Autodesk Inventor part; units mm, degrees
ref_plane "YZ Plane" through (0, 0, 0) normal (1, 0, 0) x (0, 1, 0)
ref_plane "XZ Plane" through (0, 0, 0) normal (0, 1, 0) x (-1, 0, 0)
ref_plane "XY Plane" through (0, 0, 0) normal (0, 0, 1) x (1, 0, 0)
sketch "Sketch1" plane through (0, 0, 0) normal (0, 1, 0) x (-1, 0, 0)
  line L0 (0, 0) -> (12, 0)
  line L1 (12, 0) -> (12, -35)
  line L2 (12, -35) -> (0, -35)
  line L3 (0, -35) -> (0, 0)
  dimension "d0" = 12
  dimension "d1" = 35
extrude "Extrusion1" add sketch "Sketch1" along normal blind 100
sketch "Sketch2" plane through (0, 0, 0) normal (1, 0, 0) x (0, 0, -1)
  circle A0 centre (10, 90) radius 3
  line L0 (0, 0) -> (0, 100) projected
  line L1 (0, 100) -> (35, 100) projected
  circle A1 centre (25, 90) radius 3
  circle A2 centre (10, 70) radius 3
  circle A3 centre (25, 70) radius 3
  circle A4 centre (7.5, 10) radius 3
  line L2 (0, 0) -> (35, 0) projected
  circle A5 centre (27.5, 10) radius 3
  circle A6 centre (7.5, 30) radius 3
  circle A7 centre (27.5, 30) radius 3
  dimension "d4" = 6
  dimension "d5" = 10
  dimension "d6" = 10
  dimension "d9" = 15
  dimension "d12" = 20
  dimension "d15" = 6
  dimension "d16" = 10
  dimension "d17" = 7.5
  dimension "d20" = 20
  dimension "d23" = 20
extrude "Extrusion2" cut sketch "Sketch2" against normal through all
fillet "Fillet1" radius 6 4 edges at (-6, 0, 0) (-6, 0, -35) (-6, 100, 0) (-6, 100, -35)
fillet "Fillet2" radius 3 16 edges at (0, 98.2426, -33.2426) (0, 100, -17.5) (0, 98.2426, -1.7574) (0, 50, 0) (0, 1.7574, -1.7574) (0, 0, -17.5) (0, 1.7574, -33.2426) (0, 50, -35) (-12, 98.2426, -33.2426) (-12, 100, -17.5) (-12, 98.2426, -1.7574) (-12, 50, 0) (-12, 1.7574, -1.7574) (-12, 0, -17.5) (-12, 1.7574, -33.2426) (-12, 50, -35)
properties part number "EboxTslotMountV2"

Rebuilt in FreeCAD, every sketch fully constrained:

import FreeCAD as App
import Part
import Sketcher
from FreeCAD import Vector


def edges_at(feature, points):
    """Names of the edges that pass closest to the given points."""
    edges = feature.Shape.Edges
    near = lambda p: min(range(len(edges)), key=lambda i: edges[i].distToShape(Part.Vertex(*p))[0])
    return sorted({f"Edge{near(p) + 1}" for p in points})

doc = App.newDocument("Part")
body = doc.addObject("PartDesign::Body", "Body")

# Sketch on XZ plane
sketch1 = body.newObject("Sketcher::SketchObject", "Sketch")
sketch1.AttachmentSupport = (doc.getObject("XZ_Plane"), [""])
sketch1.MapMode = "FlatFace"
sketch1.addGeometry(Part.LineSegment(Vector(-12, 0, 0), Vector(0, 0, 0)), False)
sketch1.addGeometry(Part.LineSegment(Vector(0, 0, 0), Vector(0, -35, 0)), False)
sketch1.addGeometry(Part.LineSegment(Vector(0, -35, 0), Vector(-12, -35, 0)), False)
sketch1.addGeometry(Part.LineSegment(Vector(-12, -35, 0), Vector(-12, 0, 0)), False)
sketch1.addConstraint(Sketcher.Constraint("Coincident", 0, 2, 1, 1))
sketch1.addConstraint(Sketcher.Constraint("Coincident", 1, 2, 2, 1))
sketch1.addConstraint(Sketcher.Constraint("Coincident", 2, 2, 3, 1))
sketch1.addConstraint(Sketcher.Constraint("Coincident", 3, 2, 0, 1))
sketch1.addConstraint(Sketcher.Constraint("Horizontal", 0))
sketch1.addConstraint(Sketcher.Constraint("Vertical", 1))
sketch1.addConstraint(Sketcher.Constraint("Horizontal", 2))
sketch1.addConstraint(Sketcher.Constraint("Vertical", 3))
sketch1.addConstraint(Sketcher.Constraint("Coincident", 0, 2, -1, 1))
sketch1.addConstraint(Sketcher.Constraint("DistanceX", 0, 1, 0, 2, 12.0))
sketch1.addConstraint(Sketcher.Constraint("DistanceY", 1, 2, 1, 1, 35.0))
pad1 = body.newObject("PartDesign::Pad", "Pad")
pad1.Profile = sketch1
pad1.Length = 100
pad1.Reversed = True

# Sketch on YZ plane
sketch2 = body.newObject("Sketcher::SketchObject", "Sketch001")
sketch2.AttachmentSupport = (doc.getObject("YZ_Plane"), [""])
sketch2.MapMode = "FlatFace"
sketch2.addGeometry(Part.Circle(Vector(90, -10, 0), Vector(0, 0, 1), 3), False)
sketch2.addGeometry(Part.Circle(Vector(90, -25, 0), Vector(0, 0, 1), 3), False)
sketch2.addGeometry(Part.Circle(Vector(70, -10, 0), Vector(0, 0, 1), 3), False)
sketch2.addGeometry(Part.Circle(Vector(70, -25, 0), Vector(0, 0, 1), 3), False)
sketch2.addGeometry(Part.Circle(Vector(10, -7.5, 0), Vector(0, 0, 1), 3), False)
sketch2.addGeometry(Part.Circle(Vector(10, -27.5, 0), Vector(0, 0, 1), 3), False)
sketch2.addGeometry(Part.Circle(Vector(30, -7.5, 0), Vector(0, 0, 1), 3), False)
sketch2.addGeometry(Part.Circle(Vector(30, -27.5, 0), Vector(0, 0, 1), 3), False)
sketch2.addConstraint(Sketcher.Constraint("Equal", 0, 1))
sketch2.addConstraint(Sketcher.Constraint("Equal", 1, 2))
sketch2.addConstraint(Sketcher.Constraint("Equal", 2, 3))
sketch2.addConstraint(Sketcher.Constraint("Equal", 3, 4))
sketch2.addConstraint(Sketcher.Constraint("Equal", 4, 5))
sketch2.addConstraint(Sketcher.Constraint("Equal", 5, 6))
sketch2.addConstraint(Sketcher.Constraint("Equal", 6, 7))
sketch2.addConstraint(Sketcher.Constraint("Horizontal", 0, 3, 2, 3))
sketch2.addConstraint(Sketcher.Constraint("Horizontal", 1, 3, 3, 3))
sketch2.addConstraint(Sketcher.Constraint("Horizontal", 4, 3, 6, 3))
sketch2.addConstraint(Sketcher.Constraint("Horizontal", 5, 3, 7, 3))
sketch2.addConstraint(Sketcher.Constraint("Vertical", 0, 3, 1, 3))
sketch2.addConstraint(Sketcher.Constraint("Vertical", 2, 3, 3, 3))
sketch2.addConstraint(Sketcher.Constraint("Vertical", 4, 3, 5, 3))
sketch2.addConstraint(Sketcher.Constraint("Vertical", 6, 3, 7, 3))
sketch2.addConstraint(Sketcher.Constraint("Diameter", 0, 6.0))
sketch2.addConstraint(Sketcher.Constraint("DistanceY", 0, 3, -1, 1, 10.0))
sketch2.addConstraint(Sketcher.Constraint("DistanceX", -1, 1, 4, 3, 10.0))
sketch2.addConstraint(Sketcher.Constraint("DistanceY", 1, 3, 0, 3, 15.0))
sketch2.addConstraint(Sketcher.Constraint("DistanceX", 2, 3, 0, 3, 20.0))
sketch2.addConstraint(Sketcher.Constraint("DistanceY", 5, 3, 4, 3, 20.0))
sketch2.addConstraint(Sketcher.Constraint("DistanceX", 4, 3, 6, 3, 20.0))
sketch2.addConstraint(Sketcher.Constraint("DistanceY", 4, 3, -1, 1, 7.5))
sketch2.addConstraint(Sketcher.Constraint("DistanceX", -1, 1, 0, 3, 90.0))
pocket1 = body.newObject("PartDesign::Pocket", "Pocket")
pocket1.Profile = sketch2
pocket1.Type = "ThroughAll"
doc.recompute()

fillet = body.newObject("PartDesign::Fillet", "Fillet")
fillet.Base = (pocket1, edges_at(pocket1, [
    (-6, 0, 0),
    (-6, 0, -35),
    (-6, 100, 0),
    (-6, 100, -35),
]))
fillet.Radius = 6
doc.recompute()

fillet2 = body.newObject("PartDesign::Fillet", "Fillet001")
fillet2.Base = (fillet, edges_at(fillet, [
    (0, 98.243, -33.243),
    (0, 100, -17.5),
    (0, 98.243, -1.757),
    (0, 50, 0),
    (0, 1.757, -1.757),
    (0, 0, -17.5),
    (0, 1.757, -33.243),
    (0, 50, -35),
    (-12, 98.243, -33.243),
    (-12, 100, -17.5),
    (-12, 98.243, -1.757),
    (-12, 50, 0),
    (-12, 1.757, -1.757),
    (-12, 0, -17.5),
    (-12, 1.757, -33.243),
    (-12, 50, -35),
]))
fillet2.Radius = 3

doc.recompute()
